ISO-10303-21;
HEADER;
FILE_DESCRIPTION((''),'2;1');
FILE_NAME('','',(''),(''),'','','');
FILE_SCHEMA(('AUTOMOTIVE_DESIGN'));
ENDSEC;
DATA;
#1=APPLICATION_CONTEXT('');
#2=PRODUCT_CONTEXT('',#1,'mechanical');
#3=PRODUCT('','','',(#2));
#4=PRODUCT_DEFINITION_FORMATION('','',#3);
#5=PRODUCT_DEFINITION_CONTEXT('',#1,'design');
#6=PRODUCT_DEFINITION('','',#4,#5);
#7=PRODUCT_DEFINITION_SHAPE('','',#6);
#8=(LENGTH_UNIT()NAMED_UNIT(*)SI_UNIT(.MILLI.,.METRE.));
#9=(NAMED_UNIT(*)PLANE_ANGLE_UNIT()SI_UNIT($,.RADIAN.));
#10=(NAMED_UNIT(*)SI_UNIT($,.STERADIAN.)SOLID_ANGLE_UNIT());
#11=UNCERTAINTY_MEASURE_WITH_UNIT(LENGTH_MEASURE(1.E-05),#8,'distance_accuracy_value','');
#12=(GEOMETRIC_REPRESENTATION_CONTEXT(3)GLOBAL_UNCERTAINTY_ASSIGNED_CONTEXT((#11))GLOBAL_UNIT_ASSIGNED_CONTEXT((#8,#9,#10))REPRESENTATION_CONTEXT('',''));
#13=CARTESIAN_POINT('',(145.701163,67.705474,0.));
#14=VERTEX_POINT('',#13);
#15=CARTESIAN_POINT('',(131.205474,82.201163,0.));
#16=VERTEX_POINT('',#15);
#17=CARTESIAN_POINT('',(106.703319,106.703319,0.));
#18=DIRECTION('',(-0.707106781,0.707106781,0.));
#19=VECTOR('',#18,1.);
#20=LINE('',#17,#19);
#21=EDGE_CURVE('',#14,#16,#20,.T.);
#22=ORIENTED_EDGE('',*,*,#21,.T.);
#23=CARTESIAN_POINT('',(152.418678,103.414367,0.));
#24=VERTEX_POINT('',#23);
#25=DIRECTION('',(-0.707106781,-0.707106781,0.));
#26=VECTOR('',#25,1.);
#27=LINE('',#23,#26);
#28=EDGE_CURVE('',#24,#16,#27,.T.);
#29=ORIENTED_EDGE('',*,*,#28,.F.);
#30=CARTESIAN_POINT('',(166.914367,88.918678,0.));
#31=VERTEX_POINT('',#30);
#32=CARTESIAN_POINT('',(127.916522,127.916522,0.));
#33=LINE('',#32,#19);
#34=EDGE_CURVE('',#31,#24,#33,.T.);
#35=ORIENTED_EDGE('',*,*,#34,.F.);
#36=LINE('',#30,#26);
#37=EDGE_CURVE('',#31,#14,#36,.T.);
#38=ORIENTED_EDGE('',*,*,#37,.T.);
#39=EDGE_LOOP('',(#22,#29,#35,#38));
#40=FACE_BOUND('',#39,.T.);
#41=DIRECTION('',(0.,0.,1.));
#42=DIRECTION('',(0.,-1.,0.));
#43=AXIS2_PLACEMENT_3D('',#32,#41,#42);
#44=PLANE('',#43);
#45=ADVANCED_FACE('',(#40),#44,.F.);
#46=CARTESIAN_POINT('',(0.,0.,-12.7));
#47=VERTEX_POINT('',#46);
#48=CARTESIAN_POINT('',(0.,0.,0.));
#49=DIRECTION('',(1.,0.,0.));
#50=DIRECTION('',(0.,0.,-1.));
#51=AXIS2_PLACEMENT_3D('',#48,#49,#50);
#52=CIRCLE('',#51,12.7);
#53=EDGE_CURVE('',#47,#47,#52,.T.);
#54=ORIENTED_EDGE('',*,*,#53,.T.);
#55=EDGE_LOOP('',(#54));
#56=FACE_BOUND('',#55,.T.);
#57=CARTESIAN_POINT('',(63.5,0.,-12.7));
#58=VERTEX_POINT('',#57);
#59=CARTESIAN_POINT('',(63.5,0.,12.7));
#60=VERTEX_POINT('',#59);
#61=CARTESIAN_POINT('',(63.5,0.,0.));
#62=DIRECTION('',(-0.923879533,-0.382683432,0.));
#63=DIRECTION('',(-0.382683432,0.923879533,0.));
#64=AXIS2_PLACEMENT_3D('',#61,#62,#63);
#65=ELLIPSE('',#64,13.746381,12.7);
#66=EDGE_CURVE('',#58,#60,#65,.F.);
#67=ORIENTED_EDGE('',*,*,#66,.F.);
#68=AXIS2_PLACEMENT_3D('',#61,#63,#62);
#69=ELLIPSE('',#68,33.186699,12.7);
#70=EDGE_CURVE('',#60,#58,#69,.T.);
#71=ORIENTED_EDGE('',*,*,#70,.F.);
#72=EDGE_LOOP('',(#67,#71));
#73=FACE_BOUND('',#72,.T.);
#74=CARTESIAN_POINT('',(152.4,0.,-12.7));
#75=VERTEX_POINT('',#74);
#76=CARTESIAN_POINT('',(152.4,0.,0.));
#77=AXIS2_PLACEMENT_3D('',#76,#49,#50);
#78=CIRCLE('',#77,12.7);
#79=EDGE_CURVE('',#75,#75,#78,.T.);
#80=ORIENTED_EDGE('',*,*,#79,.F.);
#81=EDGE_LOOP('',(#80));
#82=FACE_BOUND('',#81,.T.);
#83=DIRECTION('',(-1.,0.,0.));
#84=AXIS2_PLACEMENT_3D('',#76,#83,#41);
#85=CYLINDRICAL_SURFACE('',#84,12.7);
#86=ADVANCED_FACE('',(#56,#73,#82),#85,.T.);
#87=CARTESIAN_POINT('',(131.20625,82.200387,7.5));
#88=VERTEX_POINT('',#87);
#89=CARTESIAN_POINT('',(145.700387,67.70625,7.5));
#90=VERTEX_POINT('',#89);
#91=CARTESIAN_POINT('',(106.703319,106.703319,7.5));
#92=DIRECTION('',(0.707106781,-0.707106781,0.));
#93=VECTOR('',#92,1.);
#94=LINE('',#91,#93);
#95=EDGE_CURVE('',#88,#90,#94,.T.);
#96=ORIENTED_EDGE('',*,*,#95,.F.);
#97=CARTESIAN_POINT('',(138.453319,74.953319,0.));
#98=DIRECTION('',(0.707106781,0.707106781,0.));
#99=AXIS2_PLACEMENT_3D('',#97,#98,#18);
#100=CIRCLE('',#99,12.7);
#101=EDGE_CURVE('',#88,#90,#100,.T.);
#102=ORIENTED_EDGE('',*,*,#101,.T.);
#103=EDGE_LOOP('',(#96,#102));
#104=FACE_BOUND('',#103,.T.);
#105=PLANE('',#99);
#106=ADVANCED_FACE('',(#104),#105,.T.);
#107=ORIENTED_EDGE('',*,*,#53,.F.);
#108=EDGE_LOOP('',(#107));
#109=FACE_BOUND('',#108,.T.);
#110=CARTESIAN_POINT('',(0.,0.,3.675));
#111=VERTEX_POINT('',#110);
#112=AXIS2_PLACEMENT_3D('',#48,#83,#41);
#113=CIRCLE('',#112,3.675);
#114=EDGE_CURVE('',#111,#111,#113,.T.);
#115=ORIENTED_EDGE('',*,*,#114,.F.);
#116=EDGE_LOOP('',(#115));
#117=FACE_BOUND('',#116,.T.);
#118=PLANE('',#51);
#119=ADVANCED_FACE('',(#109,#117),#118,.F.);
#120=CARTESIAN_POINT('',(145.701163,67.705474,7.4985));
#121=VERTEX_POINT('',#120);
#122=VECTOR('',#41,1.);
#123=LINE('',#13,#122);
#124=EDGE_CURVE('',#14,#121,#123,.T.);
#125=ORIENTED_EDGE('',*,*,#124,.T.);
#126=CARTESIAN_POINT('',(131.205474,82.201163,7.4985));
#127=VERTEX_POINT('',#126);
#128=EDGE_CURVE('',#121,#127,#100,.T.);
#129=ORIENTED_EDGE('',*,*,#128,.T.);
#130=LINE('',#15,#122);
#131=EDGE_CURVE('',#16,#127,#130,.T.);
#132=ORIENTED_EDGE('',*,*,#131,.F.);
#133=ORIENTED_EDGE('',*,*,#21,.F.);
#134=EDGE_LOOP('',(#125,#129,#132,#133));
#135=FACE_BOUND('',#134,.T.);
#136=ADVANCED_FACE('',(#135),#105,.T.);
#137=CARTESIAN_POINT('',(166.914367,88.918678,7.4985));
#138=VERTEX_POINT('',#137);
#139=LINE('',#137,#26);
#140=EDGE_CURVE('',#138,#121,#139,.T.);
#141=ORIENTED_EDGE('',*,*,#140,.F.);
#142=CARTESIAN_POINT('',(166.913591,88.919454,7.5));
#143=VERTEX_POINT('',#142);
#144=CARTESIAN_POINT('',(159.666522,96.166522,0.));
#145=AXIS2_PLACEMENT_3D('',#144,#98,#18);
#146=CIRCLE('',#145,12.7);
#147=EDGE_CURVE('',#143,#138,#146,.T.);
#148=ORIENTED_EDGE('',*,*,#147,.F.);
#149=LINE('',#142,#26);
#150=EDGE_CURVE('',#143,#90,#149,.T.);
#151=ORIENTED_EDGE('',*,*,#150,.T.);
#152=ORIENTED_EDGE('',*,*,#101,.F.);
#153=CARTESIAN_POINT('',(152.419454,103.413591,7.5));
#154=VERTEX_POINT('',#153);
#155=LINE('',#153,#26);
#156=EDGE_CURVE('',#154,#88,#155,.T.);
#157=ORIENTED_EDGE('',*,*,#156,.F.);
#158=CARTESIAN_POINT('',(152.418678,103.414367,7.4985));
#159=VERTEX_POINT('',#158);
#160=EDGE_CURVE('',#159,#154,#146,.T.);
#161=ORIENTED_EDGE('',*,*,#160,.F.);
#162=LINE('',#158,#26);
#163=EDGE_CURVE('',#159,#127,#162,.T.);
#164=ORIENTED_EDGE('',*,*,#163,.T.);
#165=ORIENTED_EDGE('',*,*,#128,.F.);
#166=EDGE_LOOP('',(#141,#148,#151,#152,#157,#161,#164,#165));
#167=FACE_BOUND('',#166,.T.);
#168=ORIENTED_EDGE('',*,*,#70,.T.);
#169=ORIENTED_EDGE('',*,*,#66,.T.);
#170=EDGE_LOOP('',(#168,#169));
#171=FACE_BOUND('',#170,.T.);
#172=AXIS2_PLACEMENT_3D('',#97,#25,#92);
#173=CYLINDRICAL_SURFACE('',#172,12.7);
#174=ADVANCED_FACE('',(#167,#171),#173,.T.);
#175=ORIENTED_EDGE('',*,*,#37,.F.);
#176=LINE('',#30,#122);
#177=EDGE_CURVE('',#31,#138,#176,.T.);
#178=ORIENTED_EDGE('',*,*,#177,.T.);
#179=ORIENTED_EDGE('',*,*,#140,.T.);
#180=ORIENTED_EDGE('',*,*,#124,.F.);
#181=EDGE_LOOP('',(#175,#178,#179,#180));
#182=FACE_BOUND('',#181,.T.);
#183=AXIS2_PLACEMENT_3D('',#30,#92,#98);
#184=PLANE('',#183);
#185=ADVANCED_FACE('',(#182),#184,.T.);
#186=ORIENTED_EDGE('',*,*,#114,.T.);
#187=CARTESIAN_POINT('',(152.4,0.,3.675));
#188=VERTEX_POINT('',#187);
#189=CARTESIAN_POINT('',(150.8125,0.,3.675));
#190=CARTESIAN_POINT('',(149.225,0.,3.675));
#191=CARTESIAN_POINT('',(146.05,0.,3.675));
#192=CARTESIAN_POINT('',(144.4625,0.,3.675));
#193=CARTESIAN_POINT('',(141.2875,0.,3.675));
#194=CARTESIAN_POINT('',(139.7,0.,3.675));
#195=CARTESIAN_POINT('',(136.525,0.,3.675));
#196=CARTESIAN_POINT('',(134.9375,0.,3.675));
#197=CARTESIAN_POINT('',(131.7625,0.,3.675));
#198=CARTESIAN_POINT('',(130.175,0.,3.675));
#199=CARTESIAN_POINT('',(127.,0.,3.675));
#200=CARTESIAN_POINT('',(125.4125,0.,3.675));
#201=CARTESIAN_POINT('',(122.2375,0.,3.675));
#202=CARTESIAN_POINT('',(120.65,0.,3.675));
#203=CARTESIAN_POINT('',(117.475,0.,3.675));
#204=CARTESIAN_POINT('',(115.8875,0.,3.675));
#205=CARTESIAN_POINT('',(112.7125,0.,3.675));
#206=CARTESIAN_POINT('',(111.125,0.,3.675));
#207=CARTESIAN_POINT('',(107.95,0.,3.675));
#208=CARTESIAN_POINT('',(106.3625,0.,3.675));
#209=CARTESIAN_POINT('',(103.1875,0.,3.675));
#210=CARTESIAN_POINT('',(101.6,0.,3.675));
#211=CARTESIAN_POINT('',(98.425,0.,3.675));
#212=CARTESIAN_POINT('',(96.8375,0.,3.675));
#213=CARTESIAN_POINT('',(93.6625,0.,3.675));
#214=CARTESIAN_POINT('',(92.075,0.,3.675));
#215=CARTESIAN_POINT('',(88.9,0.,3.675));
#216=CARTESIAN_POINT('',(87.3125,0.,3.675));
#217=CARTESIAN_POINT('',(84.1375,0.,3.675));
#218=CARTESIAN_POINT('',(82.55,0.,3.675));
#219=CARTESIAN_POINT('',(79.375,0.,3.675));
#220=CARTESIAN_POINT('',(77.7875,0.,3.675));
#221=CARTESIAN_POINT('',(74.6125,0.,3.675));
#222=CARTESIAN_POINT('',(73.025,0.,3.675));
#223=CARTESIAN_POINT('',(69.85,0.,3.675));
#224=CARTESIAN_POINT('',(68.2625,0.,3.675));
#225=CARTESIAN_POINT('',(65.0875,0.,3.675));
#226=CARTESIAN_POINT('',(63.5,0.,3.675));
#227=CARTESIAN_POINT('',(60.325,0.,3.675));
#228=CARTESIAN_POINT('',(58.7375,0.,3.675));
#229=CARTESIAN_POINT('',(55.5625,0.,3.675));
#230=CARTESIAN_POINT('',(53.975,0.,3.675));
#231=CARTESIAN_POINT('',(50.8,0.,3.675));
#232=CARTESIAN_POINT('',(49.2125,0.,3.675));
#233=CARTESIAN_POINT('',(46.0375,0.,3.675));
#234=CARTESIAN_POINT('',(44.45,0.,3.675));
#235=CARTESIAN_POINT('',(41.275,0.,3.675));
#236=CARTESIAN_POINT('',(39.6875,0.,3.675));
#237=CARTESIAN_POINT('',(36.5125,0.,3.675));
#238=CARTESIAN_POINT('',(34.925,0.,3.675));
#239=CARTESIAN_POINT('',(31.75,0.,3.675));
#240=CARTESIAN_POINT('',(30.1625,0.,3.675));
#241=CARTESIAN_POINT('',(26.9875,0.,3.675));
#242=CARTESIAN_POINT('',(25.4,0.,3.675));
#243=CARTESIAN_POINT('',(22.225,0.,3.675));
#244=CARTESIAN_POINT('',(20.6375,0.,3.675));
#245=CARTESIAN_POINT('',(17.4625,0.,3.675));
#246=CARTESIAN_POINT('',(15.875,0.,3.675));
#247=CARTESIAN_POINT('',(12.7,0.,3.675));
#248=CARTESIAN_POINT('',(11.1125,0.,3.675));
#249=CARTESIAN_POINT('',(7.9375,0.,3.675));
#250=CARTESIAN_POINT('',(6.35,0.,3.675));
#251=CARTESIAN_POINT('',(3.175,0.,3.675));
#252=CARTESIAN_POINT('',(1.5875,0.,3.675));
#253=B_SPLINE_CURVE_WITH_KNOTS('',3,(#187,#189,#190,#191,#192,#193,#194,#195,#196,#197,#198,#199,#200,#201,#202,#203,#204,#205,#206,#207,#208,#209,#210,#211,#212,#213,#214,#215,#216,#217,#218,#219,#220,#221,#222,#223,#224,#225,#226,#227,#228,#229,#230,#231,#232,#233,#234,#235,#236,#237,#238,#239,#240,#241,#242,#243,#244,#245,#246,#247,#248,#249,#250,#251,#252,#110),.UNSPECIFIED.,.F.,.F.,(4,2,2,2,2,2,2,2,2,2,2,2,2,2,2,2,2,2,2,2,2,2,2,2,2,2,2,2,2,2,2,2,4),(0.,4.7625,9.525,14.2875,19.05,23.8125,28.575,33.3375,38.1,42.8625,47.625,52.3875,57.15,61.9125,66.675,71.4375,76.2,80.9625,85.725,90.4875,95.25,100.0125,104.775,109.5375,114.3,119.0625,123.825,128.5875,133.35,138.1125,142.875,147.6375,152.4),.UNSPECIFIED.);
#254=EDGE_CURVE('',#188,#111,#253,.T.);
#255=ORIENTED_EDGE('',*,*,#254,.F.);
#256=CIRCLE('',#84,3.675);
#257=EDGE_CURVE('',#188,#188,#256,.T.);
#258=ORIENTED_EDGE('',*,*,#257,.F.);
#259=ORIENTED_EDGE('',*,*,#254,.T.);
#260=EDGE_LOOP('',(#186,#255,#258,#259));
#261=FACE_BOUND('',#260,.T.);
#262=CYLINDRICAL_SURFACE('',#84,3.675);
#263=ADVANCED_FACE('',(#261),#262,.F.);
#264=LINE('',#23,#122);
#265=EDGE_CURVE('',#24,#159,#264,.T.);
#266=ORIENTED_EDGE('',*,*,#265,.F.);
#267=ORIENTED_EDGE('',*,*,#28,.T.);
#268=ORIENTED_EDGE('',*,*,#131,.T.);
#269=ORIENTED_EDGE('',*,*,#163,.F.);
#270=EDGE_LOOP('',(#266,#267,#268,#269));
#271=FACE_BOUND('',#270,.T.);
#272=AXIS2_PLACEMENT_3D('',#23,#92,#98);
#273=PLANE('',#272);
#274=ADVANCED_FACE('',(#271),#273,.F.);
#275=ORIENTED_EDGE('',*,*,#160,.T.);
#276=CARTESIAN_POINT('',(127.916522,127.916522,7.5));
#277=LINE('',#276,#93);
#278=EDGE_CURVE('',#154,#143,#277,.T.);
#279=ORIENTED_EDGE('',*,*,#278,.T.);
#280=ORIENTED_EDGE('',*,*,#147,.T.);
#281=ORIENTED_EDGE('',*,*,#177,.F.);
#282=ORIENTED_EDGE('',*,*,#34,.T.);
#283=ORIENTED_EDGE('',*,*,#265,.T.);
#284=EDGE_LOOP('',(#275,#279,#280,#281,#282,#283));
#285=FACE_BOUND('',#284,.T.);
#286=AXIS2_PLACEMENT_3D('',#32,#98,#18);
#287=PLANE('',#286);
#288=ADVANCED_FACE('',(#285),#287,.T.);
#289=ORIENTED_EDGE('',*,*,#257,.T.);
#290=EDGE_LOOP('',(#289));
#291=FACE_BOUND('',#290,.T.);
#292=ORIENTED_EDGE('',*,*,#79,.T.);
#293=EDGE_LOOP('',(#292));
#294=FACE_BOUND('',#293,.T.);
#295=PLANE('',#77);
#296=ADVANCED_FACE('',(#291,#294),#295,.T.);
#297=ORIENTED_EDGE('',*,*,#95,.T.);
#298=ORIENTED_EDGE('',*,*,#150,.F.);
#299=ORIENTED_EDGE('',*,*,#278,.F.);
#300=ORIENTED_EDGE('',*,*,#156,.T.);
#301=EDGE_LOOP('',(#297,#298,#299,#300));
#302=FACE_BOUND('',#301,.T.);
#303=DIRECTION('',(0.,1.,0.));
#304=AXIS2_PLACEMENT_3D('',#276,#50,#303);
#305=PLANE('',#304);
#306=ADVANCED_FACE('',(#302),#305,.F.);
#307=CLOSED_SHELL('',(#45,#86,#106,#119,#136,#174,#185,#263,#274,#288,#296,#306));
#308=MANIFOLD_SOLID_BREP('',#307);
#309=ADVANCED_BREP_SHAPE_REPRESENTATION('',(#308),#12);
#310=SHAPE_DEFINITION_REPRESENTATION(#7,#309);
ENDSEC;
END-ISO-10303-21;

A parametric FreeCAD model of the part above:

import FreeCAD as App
import Part
import Sketcher

doc = App.newDocument("Part")
params = doc.addObject("Spreadsheet::Sheet", "Params")
for row, (alias, value) in enumerate([
    ("sketch1_diameter", "25.4 mm"),
    ("pad1_length", "152.4 mm"),
    ("sketch2_diameter", "25.4 mm"),
    ("pad2_length", "106 mm"),
    ("sketch3_width", "7.5 mm"),
    ("sketch3_height", "20.5 mm"),
    ("pad3_length", "30 mm"),
    ("sketch4_diameter", "7.35 mm"),
    ("pocket1_length", "152.4 mm"),
], start=1):
    params.set(f"A{row}", alias)
    params.set(f"B{row}", "=" + value)
    params.setAlias(f"B{row}", alias)

body = doc.addObject("PartDesign::Body", "Body")

sketch1 = body.newObject("Sketcher::SketchObject", "Sketch")
sketch1.AttachmentSupport = (doc.getObject("YZ_Plane"), [""])
sketch1.MapMode = "FlatFace"
sketch1.addGeometry(Part.Circle(App.Vector(0, 0, 0), App.Vector(0, 0, 1), 13), False)
sketch1.addConstraint([
    Sketcher.Constraint("Coincident", 0, 3, -1, 1),
    Sketcher.Constraint("Diameter", 0, 25.4),
])
sketch1.setExpression("Constraints[1]", "Params.sketch1_diameter")
pad1 = body.newObject("PartDesign::Pad", "Pad")
pad1.Profile = sketch1
pad1.setExpression("Length", "Params.pad1_length")

sketch2 = body.newObject("Sketcher::SketchObject", "Sketch001")
sketch2.Placement = App.Placement(App.Vector(31.75, 31.75, 0), App.Rotation(App.Vector(0.707106781, -0.707106781, 0), App.Vector(0, 0, -0.999999999), App.Vector(0.707106781, 0.707106781, 0), "ZXY"))
sketch2.addGeometry(Part.Circle(App.Vector(45, 0, 0), App.Vector(0, 0, 1), 13), False)
sketch2.addConstraint([
    Sketcher.Constraint("PointOnObject", 0, 3, -1),
    Sketcher.Constraint("Diameter", 0, 25.4),
    Sketcher.Constraint("DistanceX", -1, 1, 0, 3, 44.901281),
])
sketch2.setExpression("Constraints[1]", "Params.sketch2_diameter")
pad2 = body.newObject("PartDesign::Pad", "Pad001")
pad2.Profile = sketch2
pad2.setExpression("Length", "Params.pad2_length")

sketch3 = body.newObject("Sketcher::SketchObject", "Sketch002")
sketch3.Placement = App.Placement(App.Vector(106.703319, 106.703319, 0), App.Rotation(App.Vector(0, 0, -1), App.Vector(-0.707106781, 0.707106781, 0), App.Vector(0.707106781, 0.707106781, 0), "ZXY"))
sketch3.addGeometry([
    Part.LineSegment(App.Vector(-8, -35, 0), App.Vector(-8, -55, 0)),
    Part.LineSegment(App.Vector(-8, -55, 0), App.Vector(0, -55, 0)),
    Part.LineSegment(App.Vector(0, -55, 0), App.Vector(0, -35, 0)),
    Part.LineSegment(App.Vector(0, -35, 0), App.Vector(-8, -35, 0)),
], False)
sketch3.addConstraint([
    Sketcher.Constraint("Coincident", 0, 2, 1, 1),
    Sketcher.Constraint("Coincident", 1, 2, 2, 1),
    Sketcher.Constraint("Coincident", 2, 2, 3, 1),
    Sketcher.Constraint("Coincident", 3, 2, 0, 1),
    Sketcher.Constraint("Vertical", 0),
    Sketcher.Constraint("Horizontal", 1),
    Sketcher.Constraint("Vertical", 2),
    Sketcher.Constraint("Horizontal", 3),
    Sketcher.Constraint("PointOnObject", 1, 2, -2),
    Sketcher.Constraint("DistanceX", 1, 1, 1, 2, 7.5),
    Sketcher.Constraint("DistanceY", 0, 2, 0, 1, 20.5),
    Sketcher.Constraint("DistanceY", 0, 2, -1, 1, 55.151281),
])
sketch3.setExpression("Constraints[9]", "Params.sketch3_width")
sketch3.setExpression("Constraints[10]", "Params.sketch3_height")
pad3 = body.newObject("PartDesign::Pad", "Pad002")
pad3.Profile = sketch3
pad3.setExpression("Length", "Params.pad3_length")

sketch4 = body.newObject("Sketcher::SketchObject", "Sketch003")
sketch4.AttachmentSupport = (doc.getObject("YZ_Plane"), [""])
sketch4.MapMode = "FlatFace"
sketch4.addGeometry(Part.Circle(App.Vector(0, 0, 0), App.Vector(0, 0, 1), 3.7), False)
sketch4.addConstraint([
    Sketcher.Constraint("Coincident", 0, 3, -1, 1),
    Sketcher.Constraint("Diameter", 0, 7.35),
])
sketch4.setExpression("Constraints[1]", "Params.sketch4_diameter")
pocket1 = body.newObject("PartDesign::Pocket", "Pocket")
pocket1.Profile = sketch4
pocket1.setExpression("Length", "Params.pocket1_length")
pocket1.Reversed = True

doc.recompute()
